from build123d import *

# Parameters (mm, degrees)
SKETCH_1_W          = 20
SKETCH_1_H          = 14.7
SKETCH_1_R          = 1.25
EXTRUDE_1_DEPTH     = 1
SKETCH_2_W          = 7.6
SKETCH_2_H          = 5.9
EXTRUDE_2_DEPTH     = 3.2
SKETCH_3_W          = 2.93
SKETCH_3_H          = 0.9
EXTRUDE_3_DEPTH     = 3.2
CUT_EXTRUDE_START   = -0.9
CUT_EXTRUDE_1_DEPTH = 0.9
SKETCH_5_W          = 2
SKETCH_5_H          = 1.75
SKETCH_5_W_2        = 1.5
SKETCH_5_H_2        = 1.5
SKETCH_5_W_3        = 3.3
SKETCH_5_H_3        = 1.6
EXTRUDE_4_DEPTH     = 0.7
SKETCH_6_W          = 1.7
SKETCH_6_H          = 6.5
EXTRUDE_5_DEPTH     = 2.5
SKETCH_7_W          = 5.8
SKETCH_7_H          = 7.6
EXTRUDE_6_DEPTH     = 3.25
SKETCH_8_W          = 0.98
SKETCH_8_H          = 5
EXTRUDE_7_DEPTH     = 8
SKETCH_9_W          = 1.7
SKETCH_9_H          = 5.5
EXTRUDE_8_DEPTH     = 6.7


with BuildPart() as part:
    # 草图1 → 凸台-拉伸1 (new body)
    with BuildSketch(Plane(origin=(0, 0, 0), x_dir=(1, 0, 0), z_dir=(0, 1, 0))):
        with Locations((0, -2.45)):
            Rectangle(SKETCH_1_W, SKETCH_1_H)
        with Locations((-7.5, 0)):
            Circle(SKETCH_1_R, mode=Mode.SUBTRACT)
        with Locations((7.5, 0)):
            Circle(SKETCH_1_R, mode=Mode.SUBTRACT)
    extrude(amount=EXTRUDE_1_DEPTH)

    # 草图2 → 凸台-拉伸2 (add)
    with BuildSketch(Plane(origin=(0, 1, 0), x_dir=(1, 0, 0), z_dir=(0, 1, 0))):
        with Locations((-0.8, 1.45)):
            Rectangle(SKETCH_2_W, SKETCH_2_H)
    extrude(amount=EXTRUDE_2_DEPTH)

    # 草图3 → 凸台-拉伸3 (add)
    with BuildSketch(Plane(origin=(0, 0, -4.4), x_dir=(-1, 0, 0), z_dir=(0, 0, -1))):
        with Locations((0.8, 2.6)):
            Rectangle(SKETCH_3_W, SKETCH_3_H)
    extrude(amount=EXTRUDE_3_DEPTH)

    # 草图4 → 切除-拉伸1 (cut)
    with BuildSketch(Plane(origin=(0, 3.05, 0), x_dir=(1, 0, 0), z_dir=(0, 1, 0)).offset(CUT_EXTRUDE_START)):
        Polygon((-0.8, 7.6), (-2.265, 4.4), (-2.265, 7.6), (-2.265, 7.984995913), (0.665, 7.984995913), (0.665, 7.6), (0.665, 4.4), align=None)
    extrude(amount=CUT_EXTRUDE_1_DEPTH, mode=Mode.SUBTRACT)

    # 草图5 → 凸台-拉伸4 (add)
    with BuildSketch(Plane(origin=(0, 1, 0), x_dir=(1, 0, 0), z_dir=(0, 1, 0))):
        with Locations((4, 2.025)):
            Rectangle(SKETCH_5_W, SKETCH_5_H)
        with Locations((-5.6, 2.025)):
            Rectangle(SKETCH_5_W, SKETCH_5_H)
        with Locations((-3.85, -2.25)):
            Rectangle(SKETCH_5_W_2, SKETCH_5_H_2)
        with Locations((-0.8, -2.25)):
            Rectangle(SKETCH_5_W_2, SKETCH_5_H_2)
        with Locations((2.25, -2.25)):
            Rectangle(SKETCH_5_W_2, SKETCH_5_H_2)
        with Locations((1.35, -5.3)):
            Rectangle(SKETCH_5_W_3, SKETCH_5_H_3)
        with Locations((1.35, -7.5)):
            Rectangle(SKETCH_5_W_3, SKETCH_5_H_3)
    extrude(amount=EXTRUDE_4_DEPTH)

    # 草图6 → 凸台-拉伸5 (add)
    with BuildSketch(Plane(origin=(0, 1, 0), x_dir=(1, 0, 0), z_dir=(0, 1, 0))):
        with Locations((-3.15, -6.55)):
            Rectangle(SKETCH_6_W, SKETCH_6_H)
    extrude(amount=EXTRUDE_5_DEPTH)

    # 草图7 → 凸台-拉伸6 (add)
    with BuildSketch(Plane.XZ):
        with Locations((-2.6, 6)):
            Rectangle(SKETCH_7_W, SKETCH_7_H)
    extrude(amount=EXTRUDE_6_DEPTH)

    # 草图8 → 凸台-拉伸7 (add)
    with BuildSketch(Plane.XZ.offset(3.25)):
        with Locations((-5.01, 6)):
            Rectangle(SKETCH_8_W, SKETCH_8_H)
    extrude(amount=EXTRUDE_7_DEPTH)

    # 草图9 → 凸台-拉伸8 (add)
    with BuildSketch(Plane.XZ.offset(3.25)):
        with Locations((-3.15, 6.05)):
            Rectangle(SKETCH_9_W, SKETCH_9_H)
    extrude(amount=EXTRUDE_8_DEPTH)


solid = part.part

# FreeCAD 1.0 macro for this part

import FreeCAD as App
import Part
import Sketcher
from FreeCAD import Vector
Q = App.Units.Quantity

doc = App.newDocument("Part")
body = doc.addObject("PartDesign::Body", "Body")

sketch1 = body.newObject("Sketcher::SketchObject", "Sketch")
sketch1.AttachmentSupport = (doc.getObject("XZ_Plane"), [""])
sketch1.MapMode = "FlatFace"
sketch1.addGeometry(Part.LineSegment(Vector(-10, -4.9, 0), Vector(-10, 9.8, 0)), False)
sketch1.addGeometry(Part.LineSegment(Vector(-10, 9.8, 0), Vector(10, 9.8, 0)), False)
sketch1.addGeometry(Part.LineSegment(Vector(10, 9.8, 0), Vector(10, -4.9, 0)), False)
sketch1.addGeometry(Part.LineSegment(Vector(10, -4.9, 0), Vector(-10, -4.9, 0)), False)
sketch1.addGeometry(Part.Circle(Vector(-7.5, 0, 0), Vector(0, 0, 1), 1.2), False)
sketch1.addGeometry(Part.Circle(Vector(7.5, 0, 0), Vector(0, 0, 1), 1.2), False)
sketch1.addConstraint(Sketcher.Constraint("Coincident", 0, 2, 1, 1))
sketch1.addConstraint(Sketcher.Constraint("Coincident", 1, 2, 2, 1))
sketch1.addConstraint(Sketcher.Constraint("Coincident", 2, 2, 3, 1))
sketch1.addConstraint(Sketcher.Constraint("Coincident", 3, 2, 0, 1))
sketch1.addConstraint(Sketcher.Constraint("Vertical", 0))
sketch1.addConstraint(Sketcher.Constraint("Horizontal", 1))
sketch1.addConstraint(Sketcher.Constraint("Vertical", 2))
sketch1.addConstraint(Sketcher.Constraint("Horizontal", 3))
sketch1.addConstraint(Sketcher.Constraint("Equal", 4, 5))
sketch1.addConstraint(Sketcher.Constraint("Symmetric", 4, 3, 5, 3, -1, 1))
sketch1.addConstraint(Sketcher.Constraint("PointOnObject", 4, 3, -1))
sketch1.addConstraint(Sketcher.Constraint("Diameter", 4, Q("2.5 mm")))
sketch1.addConstraint(Sketcher.Constraint("DistanceX", 1, 1, 1, 2, Q("20 mm")))
sketch1.addConstraint(Sketcher.Constraint("DistanceY", 0, 1, 0, 2, Q("14.7 mm")))
sketch1.addConstraint(Sketcher.Constraint("DistanceX", 0, 2, -1, 1, Q("10 mm")))
sketch1.addConstraint(Sketcher.Constraint("DistanceX", 4, 3, 5, 3, Q("15 mm")))
sketch1.addConstraint(Sketcher.Constraint("DistanceY", -1, 1, 0, 2, Q("9.8 mm")))
pad1 = body.newObject("PartDesign::Pad", "Pad")
pad1.Profile = sketch1
pad1.Length = 1
pad1.Reversed = True

sketch2 = body.newObject("Sketcher::SketchObject", "Sketch001")
sketch2.AttachmentSupport = (doc.getObject("XZ_Plane"), [""])
sketch2.MapMode = "FlatFace"
sketch2.AttachmentOffset = App.Placement(Vector(0, 0, -1), App.Rotation())
sketch2.addGeometry(Part.LineSegment(Vector(-5, -4, 0), Vector(-5, 2, 0)), False)
sketch2.addGeometry(Part.LineSegment(Vector(-5, 2, 0), Vector(3, 2, 0)), False)
sketch2.addGeometry(Part.LineSegment(Vector(3, 2, 0), Vector(3, -4, 0)), False)
sketch2.addGeometry(Part.LineSegment(Vector(3, -4, 0), Vector(-5, -4, 0)), False)
sketch2.addConstraint(Sketcher.Constraint("Coincident", 0, 2, 1, 1))
sketch2.addConstraint(Sketcher.Constraint("Coincident", 1, 2, 2, 1))
sketch2.addConstraint(Sketcher.Constraint("Coincident", 2, 2, 3, 1))
sketch2.addConstraint(Sketcher.Constraint("Coincident", 3, 2, 0, 1))
sketch2.addConstraint(Sketcher.Constraint("Vertical", 0))
sketch2.addConstraint(Sketcher.Constraint("Horizontal", 1))
sketch2.addConstraint(Sketcher.Constraint("Vertical", 2))
sketch2.addConstraint(Sketcher.Constraint("Horizontal", 3))
sketch2.addConstraint(Sketcher.Constraint("DistanceX", 1, 1, 1, 2, Q("7.6 mm")))
sketch2.addConstraint(Sketcher.Constraint("DistanceY", 0, 1, 0, 2, Q("5.9 mm")))
sketch2.addConstraint(Sketcher.Constraint("DistanceX", -1, 1, 1, 2, Q("3 mm")))
sketch2.addConstraint(Sketcher.Constraint("DistanceY", -1, 1, 0, 2, Q("1.5 mm")))
pad2 = body.newObject("PartDesign::Pad", "Pad001")
pad2.Profile = sketch2
pad2.Length = 3.2
pad2.Reversed = True

sketch3 = body.newObject("Sketcher::SketchObject", "Sketch002")
sketch3.AttachmentSupport = (doc.getObject("XY_Plane"), [""])
sketch3.MapMode = "FlatFace"
sketch3.AttachmentOffset = App.Placement(Vector(0, 0, -4.4), App.Rotation())
sketch3.addGeometry(Part.LineSegment(Vector(0.7, 3, 0), Vector(0.7, 2.1, 0)), False)
sketch3.addGeometry(Part.LineSegment(Vector(0.7, 2.1, 0), Vector(-2.3, 2.1, 0)), False)
sketch3.addGeometry(Part.LineSegment(Vector(-2.3, 2.1, 0), Vector(-2.3, 3, 0)), False)
sketch3.addGeometry(Part.LineSegment(Vector(-2.3, 3, 0), Vector(0.7, 3, 0)), False)
sketch3.addConstraint(Sketcher.Constraint("Coincident", 0, 2, 1, 1))
sketch3.addConstraint(Sketcher.Constraint("Coincident", 1, 2, 2, 1))
sketch3.addConstraint(Sketcher.Constraint("Coincident", 2, 2, 3, 1))
sketch3.addConstraint(Sketcher.Constraint("Coincident", 3, 2, 0, 1))
sketch3.addConstraint(Sketcher.Constraint("Vertical", 0))
sketch3.addConstraint(Sketcher.Constraint("Horizontal", 1))
sketch3.addConstraint(Sketcher.Constraint("Vertical", 2))
sketch3.addConstraint(Sketcher.Constraint("Horizontal", 3))
sketch3.addConstraint(Sketcher.Constraint("DistanceY", 0, 2, 0, 1, Q("0.9 mm")))
sketch3.addConstraint(Sketcher.Constraint("DistanceX", 1, 2, 1, 1, Q("2.93 mm")))
sketch3.addConstraint(Sketcher.Constraint("DistanceY", -1, 1, 0, 2, Q("2.15 mm")))
sketch3.addConstraint(Sketcher.Constraint("DistanceX", -1, 1, 0, 2, Q("0.665 mm")))
pad3 = body.newObject("PartDesign::Pad", "Pad002")
pad3.Profile = sketch3
pad3.Length = 3.2
pad3.Reversed = True

sketch4 = body.newObject("Sketcher::SketchObject", "Sketch003")
sketch4.AttachmentSupport = (doc.getObject("XZ_Plane"), [""])
sketch4.MapMode = "FlatFace"
sketch4.AttachmentOffset = App.Placement(Vector(0, 0, -2.15), App.Rotation())
sketch4.addGeometry(Part.LineSegment(Vector(-2.3, -4.4, 0), Vector(-0.8, -7.6, 0)), False)
sketch4.addGeometry(Part.LineSegment(Vector(-0.8, -7.6, 0), Vector(0.7, -4.4, 0)), False)
sketch4.addGeometry(Part.LineSegment(Vector(0.7, -4.4, 0), Vector(0.7, -8, 0)), False)
sketch4.addGeometry(Part.LineSegment(Vector(0.7, -8, 0), Vector(-2.3, -8, 0)), False)
sketch4.addGeometry(Part.LineSegment(Vector(-2.3, -8, 0), Vector(-2.3, -4.4, 0)), False)
sketch4.addConstraint(Sketcher.Constraint("Coincident", 0, 2, 1, 1))
sketch4.addConstraint(Sketcher.Constraint("Coincident", 1, 2, 2, 1))
sketch4.addConstraint(Sketcher.Constraint("Coincident", 2, 2, 3, 1))
sketch4.addConstraint(Sketcher.Constraint("Coincident", 3, 2, 4, 1))
sketch4.addConstraint(Sketcher.Constraint("Coincident", 4, 2, 0, 1))
sketch4.addConstraint(Sketcher.Constraint("Vertical", 2))
sketch4.addConstraint(Sketcher.Constraint("Horizontal", 3))
sketch4.addConstraint(Sketcher.Constraint("Vertical", 4))
sketch4.addConstraint(Sketcher.Constraint("Horizontal", 1, 2, 4, 2))
sketch4.addConstraint(Sketcher.Constraint("Equal", 0, 1))
sketch4.addConstraint(Sketcher.Constraint("DistanceX", 3, 2, 3, 1, Q("2.93 mm")))
sketch4.addConstraint(Sketcher.Constraint("DistanceX", 0, 2, -1, 1, Q("0.8 mm")))
sketch4.addConstraint(Sketcher.Constraint("DistanceY", 0, 2, -1, 1, Q("7.6 mm")))
sketch4.addConstraint(Sketcher.Constraint("DistanceY", 1, 2, -1, 1, Q("4.4 mm")))
sketch4.addConstraint(Sketcher.Constraint("DistanceY", 2, 2, 2, 1, Q("3.584996 mm")))
pocket1 = body.newObject("PartDesign::Pocket", "Pocket")
pocket1.Profile = sketch4
pocket1.Length = 0.9

sketch5 = body.newObject("Sketcher::SketchObject", "Sketch004")
sketch5.AttachmentSupport = (doc.getObject("XZ_Plane"), [""])
sketch5.MapMode = "FlatFace"
sketch5.AttachmentOffset = App.Placement(Vector(0, 0, -1), App.Rotation())
sketch5.addGeometry(Part.LineSegment(Vector(3, -2.9, 0), Vector(3, -1.1, 0)), False)
sketch5.addGeometry(Part.LineSegment(Vector(3, -1.1, 0), Vector(5, -1.1, 0)), False)
sketch5.addGeometry(Part.LineSegment(Vector(5, -1.1, 0), Vector(5, -2.9, 0)), False)
sketch5.addGeometry(Part.LineSegment(Vector(5, -2.9, 0), Vector(3, -2.9, 0)), False)
sketch5.addGeometry(Part.LineSegment(Vector(-6.6, -2.9, 0), Vector(-6.6, -1.1, 0)), False)
sketch5.addGeometry(Part.LineSegment(Vector(-6.6, -1.1, 0), Vector(-4.6, -1.1, 0)), False)
sketch5.addGeometry(Part.LineSegment(Vector(-4.6, -1.1, 0), Vector(-4.6, -2.9, 0)), False)
sketch5.addGeometry(Part.LineSegment(Vector(-4.6, -2.9, 0), Vector(-6.6, -2.9, 0)), False)
sketch5.addGeometry(Part.LineSegment(Vector(-4.6, 1.5, 0), Vector(-4.6, 3, 0)), False)
sketch5.addGeometry(Part.LineSegment(Vector(-4.6, 3, 0), Vector(-3.1, 3, 0)), False)
sketch5.addGeometry(Part.LineSegment(Vector(-3.1, 3, 0), Vector(-3.1, 1.5, 0)), False)
sketch5.addGeometry(Part.LineSegment(Vector(-3.1, 1.5, 0), Vector(-4.6, 1.5, 0)), False)
sketch5.addGeometry(Part.LineSegment(Vector(-1.6, 1.5, 0), Vector(-1.6, 3, 0)), False)
sketch5.addGeometry(Part.LineSegment(Vector(-1.6, 3, 0), Vector(-0.1, 3, 0)), False)
sketch5.addGeometry(Part.LineSegment(Vector(-0.1, 3, 0), Vector(-0.1, 1.5, 0)), False)
sketch5.addGeometry(Part.LineSegment(Vector(-0.1, 1.5, 0), Vector(-1.6, 1.5, 0)), False)
sketch5.addGeometry(Part.LineSegment(Vector(1.5, 1.5, 0), Vector(1.5, 3, 0)), False)
sketch5.addGeometry(Part.LineSegment(Vector(1.5, 3, 0), Vector(3, 3, 0)), False)
sketch5.addGeometry(Part.LineSegment(Vector(3, 3, 0), Vector(3, 1.5, 0)), False)
sketch5.addGeometry(Part.LineSegment(Vector(3, 1.5, 0), Vector(1.5, 1.5, 0)), False)
sketch5.addGeometry(Part.LineSegment(Vector(-0.3, 4.5, 0), Vector(-0.3, 6.1, 0)), False)
sketch5.addGeometry(Part.LineSegment(Vector(-0.3, 6.1, 0), Vector(3, 6.1, 0)), False)
sketch5.addGeometry(Part.LineSegment(Vector(3, 6.1, 0), Vector(3, 4.5, 0)), False)
sketch5.addGeometry(Part.LineSegment(Vector(3, 4.5, 0), Vector(-0.3, 4.5, 0)), False)
sketch5.addGeometry(Part.LineSegment(Vector(-0.3, 6.7, 0), Vector(-0.3, 8.3, 0)), False)
sketch5.addGeometry(Part.LineSegment(Vector(-0.3, 8.3, 0), Vector(3, 8.3, 0)), False)
sketch5.addGeometry(Part.LineSegment(Vector(3, 8.3, 0), Vector(3, 6.7, 0)), False)
sketch5.addGeometry(Part.LineSegment(Vector(3, 6.7, 0), Vector(-0.3, 6.7, 0)), False)
sketch5.addConstraint(Sketcher.Constraint("Coincident", 0, 2, 1, 1))
sketch5.addConstraint(Sketcher.Constraint("Coincident", 1, 2, 2, 1))
sketch5.addConstraint(Sketcher.Constraint("Coincident", 2, 2, 3, 1))
sketch5.addConstraint(Sketcher.Constraint("Coincident", 3, 2, 0, 1))
sketch5.addConstraint(Sketcher.Constraint("Coincident", 4, 2, 5, 1))
sketch5.addConstraint(Sketcher.Constraint("Coincident", 5, 2, 6, 1))
sketch5.addConstraint(Sketcher.Constraint("Coincident", 6, 2, 7, 1))
sketch5.addConstraint(Sketcher.Constraint("Coincident", 7, 2, 4, 1))
sketch5.addConstraint(Sketcher.Constraint("Coincident", 8, 2, 9, 1))
sketch5.addConstraint(Sketcher.Constraint("Coincident", 9, 2, 10, 1))
sketch5.addConstraint(Sketcher.Constraint("Coincident", 10, 2, 11, 1))
sketch5.addConstraint(Sketcher.Constraint("Coincident", 11, 2, 8, 1))
sketch5.addConstraint(Sketcher.Constraint("Coincident", 12, 2, 13, 1))
sketch5.addConstraint(Sketcher.Constraint("Coincident", 13, 2, 14, 1))
sketch5.addConstraint(Sketcher.Constraint("Coincident", 14, 2, 15, 1))
sketch5.addConstraint(Sketcher.Constraint("Coincident", 15, 2, 12, 1))
sketch5.addConstraint(Sketcher.Constraint("Coincident", 16, 2, 17, 1))
sketch5.addConstraint(Sketcher.Constraint("Coincident", 17, 2, 18, 1))
sketch5.addConstraint(Sketcher.Constraint("Coincident", 18, 2, 19, 1))
sketch5.addConstraint(Sketcher.Constraint("Coincident", 19, 2, 16, 1))
sketch5.addConstraint(Sketcher.Constraint("Coincident", 20, 2, 21, 1))
sketch5.addConstraint(Sketcher.Constraint("Coincident", 21, 2, 22, 1))
sketch5.addConstraint(Sketcher.Constraint("Coincident", 22, 2, 23, 1))
sketch5.addConstraint(Sketcher.Constraint("Coincident", 23, 2, 20, 1))
sketch5.addConstraint(Sketcher.Constraint("Coincident", 24, 2, 25, 1))
sketch5.addConstraint(Sketcher.Constraint("Coincident", 25, 2, 26, 1))
sketch5.addConstraint(Sketcher.Constraint("Coincident", 26, 2, 27, 1))
sketch5.addConstraint(Sketcher.Constraint("Coincident", 27, 2, 24, 1))
sketch5.addConstraint(Sketcher.Constraint("Vertical", 0))
sketch5.addConstraint(Sketcher.Constraint("Horizontal", 1))
sketch5.addConstraint(Sketcher.Constraint("Vertical", 2))
sketch5.addConstraint(Sketcher.Constraint("Horizontal", 3))
sketch5.addConstraint(Sketcher.Constraint("Vertical", 4))
sketch5.addConstraint(Sketcher.Constraint("Horizontal", 5))
sketch5.addConstraint(Sketcher.Constraint("Vertical", 6))
sketch5.addConstraint(Sketcher.Constraint("Horizontal", 7))
sketch5.addConstraint(Sketcher.Constraint("Vertical", 8))
sketch5.addConstraint(Sketcher.Constraint("Horizontal", 9))
sketch5.addConstraint(Sketcher.Constraint("Vertical", 10))
sketch5.addConstraint(Sketcher.Constraint("Horizontal", 11))
sketch5.addConstraint(Sketcher.Constraint("Vertical", 12))
sketch5.addConstraint(Sketcher.Constraint("Horizontal", 13))
sketch5.addConstraint(Sketcher.Constraint("Vertical", 14))
sketch5.addConstraint(Sketcher.Constraint("Horizontal", 15))
sketch5.addConstraint(Sketcher.Constraint("Vertical", 16))
sketch5.addConstraint(Sketcher.Constraint("Horizontal", 17))
sketch5.addConstraint(Sketcher.Constraint("Vertical", 18))
sketch5.addConstraint(Sketcher.Constraint("Horizontal", 19))
sketch5.addConstraint(Sketcher.Constraint("Vertical", 20))
sketch5.addConstraint(Sketcher.Constraint("Horizontal", 21))
sketch5.addConstraint(Sketcher.Constraint("Vertical", 22))
sketch5.addConstraint(Sketcher.Constraint("Horizontal", 23))
sketch5.addConstraint(Sketcher.Constraint("Vertical", 24))
sketch5.addConstraint(Sketcher.Constraint("Horizontal", 25))
sketch5.addConstraint(Sketcher.Constraint("Vertical", 26))
sketch5.addConstraint(Sketcher.Constraint("Horizontal", 27))
sketch5.addConstraint(Sketcher.Constraint("Horizontal", 1, 2, 4, 2))
sketch5.addConstraint(Sketcher.Constraint("Horizontal", 3, 2, 6, 2))
sketch5.addConstraint(Sketcher.Constraint("Horizontal", 9, 2, 12, 2))
sketch5.addConstraint(Sketcher.Constraint("Horizontal", 11, 2, 14, 2))
sketch5.addConstraint(Sketcher.Constraint("Horizontal", 13, 2, 16, 2))
sketch5.addConstraint(Sketcher.Constraint("Horizontal", 15, 2, 18, 2))
sketch5.addConstraint(Sketcher.Constraint("Vertical", 6, 2, 8, 2))
sketch5.addConstraint(Sketcher.Constraint("Vertical", 3, 2, 17, 2))
sketch5.addConstraint(Sketcher.Constraint("Vertical", 18, 2, 21, 2))
sketch5.addConstraint(Sketcher.Constraint("Vertical", 23, 2, 24, 2))
sketch5.addConstraint(Sketcher.Constraint("Vertical", 22, 2, 25, 2))
sketch5.addConstraint(Sketcher.Constraint("Equal", 3, 5))
sketch5.addConstraint(Sketcher.Constraint("Equal", 11, 13))
sketch5.addConstraint(Sketcher.Constraint("Equal", 15, 17))
sketch5.addConstraint(Sketcher.Constraint("Equal", 19, 8))
sketch5.addConstraint(Sketcher.Constraint("Equal", 22, 24))
sketch5.addConstraint(Sketcher.Constraint("DistanceX", 1, 1, 1, 2, Q("2 mm")))
sketch5.addConstraint(Sketcher.Constraint("DistanceX", 9, 1, 9, 2, Q("1.5 mm")))
sketch5.addConstraint(Sketcher.Constraint("DistanceX", 21, 1, 21, 2, Q("3.3 mm")))
sketch5.addConstraint(Sketcher.Constraint("DistanceY", 20, 1, 20, 2, Q("1.6 mm")))
sketch5.addConstraint(Sketcher.Constraint("DistanceX", -1, 1, 0, 2, Q("3 mm")))
sketch5.addConstraint(Sketcher.Constraint("DistanceY", -1, 1, 8, 2, Q("3 mm")))
sketch5.addConstraint(Sketcher.Constraint("DistanceY", 18, 2, 22, 2, Q("3 mm")))
sketch5.addConstraint(Sketcher.Constraint("DistanceY", 0, 1, 0, 2, Q("1.75 mm")))
sketch5.addConstraint(Sketcher.Constraint("DistanceY", 2, 2, -1, 1, Q("2.9 mm")))
sketch5.addConstraint(Sketcher.Constraint("DistanceX", 4, 2, -1, 1, Q("6.6 mm")))
sketch5.addConstraint(Sketcher.Constraint("DistanceY", -1, 1, 24, 2, Q("8.3 mm")))
sketch5.addConstraint(Sketcher.Constraint("DistanceX", 12, 2, -1, 1, Q("1.55 mm")))
pad4 = body.newObject("PartDesign::Pad", "Pad003")
pad4.Profile = sketch5
pad4.Length = 0.7
pad4.Reversed = True

sketch6 = body.newObject("Sketcher::SketchObject", "Sketch005")
sketch6.AttachmentSupport = (doc.getObject("XZ_Plane"), [""])
sketch6.MapMode = "FlatFace"
sketch6.AttachmentOffset = App.Placement(Vector(0, 0, -1), App.Rotation())
sketch6.addGeometry(Part.LineSegment(Vector(-4, 3.3, 0), Vector(-4, 9.8, 0)), False)
sketch6.addGeometry(Part.LineSegment(Vector(-4, 9.8, 0), Vector(-2.3, 9.8, 0)), False)
sketch6.addGeometry(Part.LineSegment(Vector(-2.3, 9.8, 0), Vector(-2.3, 3.3, 0)), False)
sketch6.addGeometry(Part.LineSegment(Vector(-2.3, 3.3, 0), Vector(-4, 3.3, 0)), False)
sketch6.addConstraint(Sketcher.Constraint("Coincident", 0, 2, 1, 1))
sketch6.addConstraint(Sketcher.Constraint("Coincident", 1, 2, 2, 1))
sketch6.addConstraint(Sketcher.Constraint("Coincident", 2, 2, 3, 1))
sketch6.addConstraint(Sketcher.Constraint("Coincident", 3, 2, 0, 1))
sketch6.addConstraint(Sketcher.Constraint("Vertical", 0))
sketch6.addConstraint(Sketcher.Constraint("Horizontal", 1))
sketch6.addConstraint(Sketcher.Constraint("Vertical", 2))
sketch6.addConstraint(Sketcher.Constraint("Horizontal", 3))
sketch6.addConstraint(Sketcher.Constraint("DistanceX", 1, 1, 1, 2, Q("1.7 mm")))
sketch6.addConstraint(Sketcher.Constraint("DistanceY", 0, 1, 0, 2, Q("6.5 mm")))
sketch6.addConstraint(Sketcher.Constraint("DistanceX", 0, 2, -1, 1, Q("4 mm")))
sketch6.addConstraint(Sketcher.Constraint("DistanceY", -1, 1, 0, 2, Q("9.8 mm")))
pad5 = body.newObject("PartDesign::Pad", "Pad004")
pad5.Profile = sketch6
pad5.Length = 2.5
pad5.Reversed = True

sketch7 = body.newObject("Sketcher::SketchObject", "Sketch006")
sketch7.AttachmentSupport = (doc.getObject("XZ_Plane"), [""])
sketch7.MapMode = "FlatFace"
sketch7.addGeometry(Part.LineSegment(Vector(-6, 10, 0), Vector(-6, 2, 0)), False)
sketch7.addGeometry(Part.LineSegment(Vector(-6, 2, 0), Vector(0, 2, 0)), False)
sketch7.addGeometry(Part.LineSegment(Vector(0, 2, 0), Vector(0, 10, 0)), False)
sketch7.addGeometry(Part.LineSegment(Vector(0, 10, 0), Vector(-6, 10, 0)), False)
sketch7.addConstraint(Sketcher.Constraint("Coincident", 0, 2, 1, 1))
sketch7.addConstraint(Sketcher.Constraint("Coincident", 1, 2, 2, 1))
sketch7.addConstraint(Sketcher.Constraint("Coincident", 2, 2, 3, 1))
sketch7.addConstraint(Sketcher.Constraint("Coincident", 3, 2, 0, 1))
sketch7.addConstraint(Sketcher.Constraint("Vertical", 0))
sketch7.addConstraint(Sketcher.Constraint("Horizontal", 1))
sketch7.addConstraint(Sketcher.Constraint("Vertical", 2))
sketch7.addConstraint(Sketcher.Constraint("Horizontal", 3))
sketch7.addConstraint(Sketcher.Constraint("DistanceX", 1, 1, 1, 2, Q("5.8 mm")))
sketch7.addConstraint(Sketcher.Constraint("DistanceY", 0, 2, 0, 1, Q("7.6 mm")))
sketch7.addConstraint(Sketcher.Constraint("DistanceX", 0, 2, -1, 1, Q("5.5 mm")))
sketch7.addConstraint(Sketcher.Constraint("DistanceY", -1, 1, 0, 2, Q("2.2 mm")))
pad6 = body.newObject("PartDesign::Pad", "Pad005")
pad6.Profile = sketch7
pad6.Length = 3.25

sketch8 = body.newObject("Sketcher::SketchObject", "Sketch007")
sketch8.AttachmentSupport = (doc.getObject("XZ_Plane"), [""])
sketch8.MapMode = "FlatFace"
sketch8.AttachmentOffset = App.Placement(Vector(0, 0, 3.25), App.Rotation())
sketch8.addGeometry(Part.LineSegment(Vector(-5.5, 8.5, 0), Vector(-5.5, 3.5, 0)), False)
sketch8.addGeometry(Part.LineSegment(Vector(-5.5, 3.5, 0), Vector(-4.5, 3.5, 0)), False)
sketch8.addGeometry(Part.LineSegment(Vector(-4.5, 3.5, 0), Vector(-4.5, 8.5, 0)), False)
sketch8.addGeometry(Part.LineSegment(Vector(-4.5, 8.5, 0), Vector(-5.5, 8.5, 0)), False)
sketch8.addConstraint(Sketcher.Constraint("Coincident", 0, 2, 1, 1))
sketch8.addConstraint(Sketcher.Constraint("Coincident", 1, 2, 2, 1))
sketch8.addConstraint(Sketcher.Constraint("Coincident", 2, 2, 3, 1))
sketch8.addConstraint(Sketcher.Constraint("Coincident", 3, 2, 0, 1))
sketch8.addConstraint(Sketcher.Constraint("Vertical", 0))
sketch8.addConstraint(Sketcher.Constraint("Horizontal", 1))
sketch8.addConstraint(Sketcher.Constraint("Vertical", 2))
sketch8.addConstraint(Sketcher.Constraint("Horizontal", 3))
sketch8.addConstraint(Sketcher.Constraint("DistanceY", 0, 2, 0, 1, Q("5 mm")))
sketch8.addConstraint(Sketcher.Constraint("DistanceX", 1, 1, 1, 2, Q("0.98 mm")))
sketch8.addConstraint(Sketcher.Constraint("DistanceX", 0, 2, -1, 1, Q("5.5 mm")))
sketch8.addConstraint(Sketcher.Constraint("DistanceY", -1, 1, 0, 2, Q("3.5 mm")))
pad7 = body.newObject("PartDesign::Pad", "Pad006")
pad7.Profile = sketch8
pad7.Length = 8

sketch9 = body.newObject("Sketcher::SketchObject", "Sketch008")
sketch9.AttachmentSupport = (doc.getObject("XZ_Plane"), [""])
sketch9.MapMode = "FlatFace"
sketch9.AttachmentOffset = App.Placement(Vector(0, 0, 3.25), App.Rotation())
sketch9.addGeometry(Part.LineSegment(Vector(-4, 8.8, 0), Vector(-4, 3.3, 0)), False)
sketch9.addGeometry(Part.LineSegment(Vector(-4, 3.3, 0), Vector(-2.3, 3.3, 0)), False)
sketch9.addGeometry(Part.LineSegment(Vector(-2.3, 3.3, 0), Vector(-2.3, 8.8, 0)), False)
sketch9.addGeometry(Part.LineSegment(Vector(-2.3, 8.8, 0), Vector(-4, 8.8, 0)), False)
sketch9.addConstraint(Sketcher.Constraint("Coincident", 0, 2, 1, 1))
sketch9.addConstraint(Sketcher.Constraint("Coincident", 1, 2, 2, 1))
sketch9.addConstraint(Sketcher.Constraint("Coincident", 2, 2, 3, 1))
sketch9.addConstraint(Sketcher.Constraint("Coincident", 3, 2, 0, 1))
sketch9.addConstraint(Sketcher.Constraint("Vertical", 0))
sketch9.addConstraint(Sketcher.Constraint("Horizontal", 1))
sketch9.addConstraint(Sketcher.Constraint("Vertical", 2))
sketch9.addConstraint(Sketcher.Constraint("Horizontal", 3))
sketch9.addConstraint(Sketcher.Constraint("DistanceX", 1, 1, 1, 2, Q("1.7 mm")))
sketch9.addConstraint(Sketcher.Constraint("DistanceY", 0, 2, 0, 1, Q("5.5 mm")))
sketch9.addConstraint(Sketcher.Constraint("DistanceX", 0, 2, -1, 1, Q("4 mm")))
sketch9.addConstraint(Sketcher.Constraint("DistanceY", -1, 1, 0, 2, Q("3.3 mm")))
pad8 = body.newObject("PartDesign::Pad", "Pad007")
pad8.Profile = sketch9
pad8.Length = 6.7

doc.recompute()
